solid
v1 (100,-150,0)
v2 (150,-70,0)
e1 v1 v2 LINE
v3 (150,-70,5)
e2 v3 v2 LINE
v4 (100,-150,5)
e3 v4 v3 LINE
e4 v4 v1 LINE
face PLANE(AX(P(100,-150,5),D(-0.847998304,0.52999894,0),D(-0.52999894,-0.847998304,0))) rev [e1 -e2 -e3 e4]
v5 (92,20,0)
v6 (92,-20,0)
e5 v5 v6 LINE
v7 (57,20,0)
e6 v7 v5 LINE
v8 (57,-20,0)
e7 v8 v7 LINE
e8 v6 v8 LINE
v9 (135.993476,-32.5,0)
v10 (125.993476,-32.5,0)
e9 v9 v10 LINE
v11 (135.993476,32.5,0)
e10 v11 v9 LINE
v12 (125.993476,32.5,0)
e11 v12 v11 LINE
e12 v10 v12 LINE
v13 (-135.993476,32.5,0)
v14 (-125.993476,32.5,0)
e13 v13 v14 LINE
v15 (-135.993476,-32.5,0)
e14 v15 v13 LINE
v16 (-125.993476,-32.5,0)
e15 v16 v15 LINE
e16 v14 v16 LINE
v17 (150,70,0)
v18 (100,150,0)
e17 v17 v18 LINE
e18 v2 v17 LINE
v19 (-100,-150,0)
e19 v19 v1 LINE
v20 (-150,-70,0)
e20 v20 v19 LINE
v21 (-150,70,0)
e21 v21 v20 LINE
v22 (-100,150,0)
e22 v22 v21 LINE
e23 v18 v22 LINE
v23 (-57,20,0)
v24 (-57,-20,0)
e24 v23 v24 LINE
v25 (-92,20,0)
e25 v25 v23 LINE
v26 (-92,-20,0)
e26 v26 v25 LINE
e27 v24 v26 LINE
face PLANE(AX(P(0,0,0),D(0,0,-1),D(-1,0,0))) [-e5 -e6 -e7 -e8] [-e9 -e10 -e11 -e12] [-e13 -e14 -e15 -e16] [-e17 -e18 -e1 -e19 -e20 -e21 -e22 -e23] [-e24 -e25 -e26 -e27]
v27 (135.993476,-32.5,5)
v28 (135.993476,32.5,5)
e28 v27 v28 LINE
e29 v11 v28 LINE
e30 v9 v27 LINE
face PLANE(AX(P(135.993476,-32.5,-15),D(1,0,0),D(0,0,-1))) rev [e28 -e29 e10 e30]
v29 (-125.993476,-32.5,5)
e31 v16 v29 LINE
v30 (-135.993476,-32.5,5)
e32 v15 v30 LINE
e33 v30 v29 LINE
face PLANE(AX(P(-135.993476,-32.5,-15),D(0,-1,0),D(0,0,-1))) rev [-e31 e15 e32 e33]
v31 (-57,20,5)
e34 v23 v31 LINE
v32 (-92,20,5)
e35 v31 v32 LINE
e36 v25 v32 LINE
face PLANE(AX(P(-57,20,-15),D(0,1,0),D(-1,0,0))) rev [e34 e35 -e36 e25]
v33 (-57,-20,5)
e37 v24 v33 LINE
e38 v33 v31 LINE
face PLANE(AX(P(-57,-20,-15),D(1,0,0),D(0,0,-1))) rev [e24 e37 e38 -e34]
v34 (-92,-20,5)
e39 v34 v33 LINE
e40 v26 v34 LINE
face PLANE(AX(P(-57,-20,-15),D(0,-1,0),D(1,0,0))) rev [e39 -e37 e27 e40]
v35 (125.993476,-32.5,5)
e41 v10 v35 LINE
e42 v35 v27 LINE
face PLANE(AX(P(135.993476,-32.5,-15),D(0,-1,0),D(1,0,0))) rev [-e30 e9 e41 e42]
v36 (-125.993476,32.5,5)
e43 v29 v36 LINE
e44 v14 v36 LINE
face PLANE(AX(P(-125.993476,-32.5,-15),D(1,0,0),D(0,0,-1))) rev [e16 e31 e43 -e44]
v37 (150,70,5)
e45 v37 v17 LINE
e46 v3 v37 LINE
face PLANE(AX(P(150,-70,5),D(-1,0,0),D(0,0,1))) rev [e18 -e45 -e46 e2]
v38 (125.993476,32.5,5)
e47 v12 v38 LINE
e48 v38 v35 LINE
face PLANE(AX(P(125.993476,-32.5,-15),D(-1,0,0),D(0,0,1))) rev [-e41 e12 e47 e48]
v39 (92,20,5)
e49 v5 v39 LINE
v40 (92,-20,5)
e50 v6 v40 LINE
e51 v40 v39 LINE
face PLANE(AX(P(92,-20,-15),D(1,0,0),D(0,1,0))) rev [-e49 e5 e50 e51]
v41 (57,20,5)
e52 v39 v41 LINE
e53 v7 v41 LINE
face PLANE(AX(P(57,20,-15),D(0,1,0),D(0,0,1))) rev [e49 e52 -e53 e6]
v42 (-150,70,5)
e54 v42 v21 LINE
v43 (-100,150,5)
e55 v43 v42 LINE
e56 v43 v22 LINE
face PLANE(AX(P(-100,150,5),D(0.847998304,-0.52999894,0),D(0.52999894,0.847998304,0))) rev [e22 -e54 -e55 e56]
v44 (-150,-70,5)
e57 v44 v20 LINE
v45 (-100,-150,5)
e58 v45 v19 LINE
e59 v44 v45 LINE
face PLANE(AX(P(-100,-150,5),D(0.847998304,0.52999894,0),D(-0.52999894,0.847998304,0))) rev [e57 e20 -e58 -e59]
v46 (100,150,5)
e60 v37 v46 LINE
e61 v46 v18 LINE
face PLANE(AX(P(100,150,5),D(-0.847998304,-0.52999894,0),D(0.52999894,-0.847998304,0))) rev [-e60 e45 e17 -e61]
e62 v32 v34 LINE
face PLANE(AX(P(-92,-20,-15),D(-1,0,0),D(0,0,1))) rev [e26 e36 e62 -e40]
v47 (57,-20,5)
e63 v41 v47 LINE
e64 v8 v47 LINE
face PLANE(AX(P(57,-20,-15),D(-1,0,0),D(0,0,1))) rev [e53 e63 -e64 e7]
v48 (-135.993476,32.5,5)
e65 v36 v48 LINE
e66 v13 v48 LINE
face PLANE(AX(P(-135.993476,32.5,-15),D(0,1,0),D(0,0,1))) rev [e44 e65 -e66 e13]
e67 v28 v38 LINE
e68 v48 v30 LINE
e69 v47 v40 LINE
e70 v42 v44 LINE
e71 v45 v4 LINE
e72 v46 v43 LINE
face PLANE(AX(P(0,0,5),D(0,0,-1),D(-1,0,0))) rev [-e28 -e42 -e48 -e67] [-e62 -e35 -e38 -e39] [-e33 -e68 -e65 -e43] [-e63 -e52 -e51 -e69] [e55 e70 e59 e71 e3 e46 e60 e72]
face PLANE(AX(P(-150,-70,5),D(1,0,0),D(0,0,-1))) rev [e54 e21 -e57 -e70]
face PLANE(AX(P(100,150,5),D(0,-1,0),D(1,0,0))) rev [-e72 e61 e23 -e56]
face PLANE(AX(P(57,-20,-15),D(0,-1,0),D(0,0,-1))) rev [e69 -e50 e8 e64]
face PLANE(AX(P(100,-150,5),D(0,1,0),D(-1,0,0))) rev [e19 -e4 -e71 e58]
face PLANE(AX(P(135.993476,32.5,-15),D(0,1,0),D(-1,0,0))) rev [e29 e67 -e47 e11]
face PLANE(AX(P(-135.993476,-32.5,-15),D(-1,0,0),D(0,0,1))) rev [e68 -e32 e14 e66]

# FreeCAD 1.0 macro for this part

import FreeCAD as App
import Part
import Sketcher

V = App.Vector

doc = App.newDocument("Part")
body = doc.addObject("PartDesign::Body", "Body")

# Sketch on XY plane
sketch1 = body.newObject("Sketcher::SketchObject", "Sketch")
sketch1.AttachmentSupport = (doc.getObject("XY_Plane"), [""])
sketch1.MapMode = "FlatFace"
sketch1.addGeometry([
    Part.LineSegment(V(-100, 150, 0), V(-150, 70, 0)),  # 0
    Part.LineSegment(V(-150, 70, 0), V(-150, -70, 0)),  # 1
    Part.LineSegment(V(-150, -70, 0), V(-100, -150, 0)),  # 2
    Part.LineSegment(V(-100, -150, 0), V(100, -150, 0)),  # 3
    Part.LineSegment(V(100, -150, 0), V(150, -70, 0)),  # 4
    Part.LineSegment(V(150, -70, 0), V(150, 70, 0)),  # 5
    Part.LineSegment(V(150, 70, 0), V(100, 150, 0)),  # 6
    Part.LineSegment(V(100, 150, 0), V(-100, 150, 0)),  # 7
], False)
sketch1.addConstraint([
    Sketcher.Constraint("Coincident", 0, 2, 1, 1),
    Sketcher.Constraint("Coincident", 1, 2, 2, 1),
    Sketcher.Constraint("Coincident", 2, 2, 3, 1),
    Sketcher.Constraint("Coincident", 3, 2, 4, 1),
    Sketcher.Constraint("Coincident", 4, 2, 5, 1),
    Sketcher.Constraint("Coincident", 5, 2, 6, 1),
    Sketcher.Constraint("Coincident", 6, 2, 7, 1),
    Sketcher.Constraint("Coincident", 7, 2, 0, 1),
    Sketcher.Constraint("Vertical", 1),
    Sketcher.Constraint("Horizontal", 3),
    Sketcher.Constraint("Vertical", 5),
    Sketcher.Constraint("Horizontal", 7),
    Sketcher.Constraint("Symmetric", 0, 2, 4, 2, -1, 1),
    Sketcher.Constraint("Symmetric", 2, 2, 6, 2, -1, 1),
    Sketcher.Constraint("Parallel", 0, 4),
    Sketcher.Constraint("Parallel", 2, 6),
    Sketcher.Constraint("Horizontal", 1, 2, 4, 2),
    Sketcher.Constraint("Vertical", 3, 2, 6, 2),
    Sketcher.Constraint("DistanceX", 3, 1, 3, 2, 200.0),
    Sketcher.Constraint("DistanceY", 1, 2, 1, 1, 140.0),
    Sketcher.Constraint("DistanceX", 0, 2, -1, 1, 150.0),
    Sketcher.Constraint("DistanceY", 2, 2, -1, 1, 150.0),
])
pad1 = body.newObject("PartDesign::Pad", "Pad")
pad1.Profile = sketch1
pad1.Length = 5

# Sketch on XY plane
sketch2 = body.newObject("Sketcher::SketchObject", "Sketch001")
sketch2.AttachmentSupport = (doc.getObject("XY_Plane"), [""])
sketch2.MapMode = "FlatFace"
sketch2.AttachmentOffset = App.Placement(V(0, 0, 5), App.Rotation())
sketch2.addGeometry([
    Part.LineSegment(V(-92, 20, 0), V(-92, -20, 0)),  # 0
    Part.LineSegment(V(-92, -20, 0), V(-57, -20, 0)),  # 1
    Part.LineSegment(V(-57, -20, 0), V(-57, 20, 0)),  # 2
    Part.LineSegment(V(-57, 20, 0), V(-92, 20, 0)),  # 3
    Part.LineSegment(V(57, 20, 0), V(57, -20, 0)),  # 4
    Part.LineSegment(V(57, -20, 0), V(92, -20, 0)),  # 5
    Part.LineSegment(V(92, -20, 0), V(92, 20, 0)),  # 6
    Part.LineSegment(V(92, 20, 0), V(57, 20, 0)),  # 7
    Part.LineSegment(V(-136, 32, 0), V(-136, -32, 0)),  # 8
    Part.LineSegment(V(-136, -32, 0), V(-126, -32, 0)),  # 9
    Part.LineSegment(V(-126, -32, 0), V(-126, 32, 0)),  # 10
    Part.LineSegment(V(-126, 32, 0), V(-136, 32, 0)),  # 11
    Part.LineSegment(V(126, 32, 0), V(126, -32, 0)),  # 12
    Part.LineSegment(V(126, -32, 0), V(136, -32, 0)),  # 13
    Part.LineSegment(V(136, -32, 0), V(136, 32, 0)),  # 14
    Part.LineSegment(V(136, 32, 0), V(126, 32, 0)),  # 15
], False)
sketch2.addConstraint([
    Sketcher.Constraint("Coincident", 0, 2, 1, 1),
    Sketcher.Constraint("Coincident", 1, 2, 2, 1),
    Sketcher.Constraint("Coincident", 2, 2, 3, 1),
    Sketcher.Constraint("Coincident", 3, 2, 0, 1),
    Sketcher.Constraint("Coincident", 4, 2, 5, 1),
    Sketcher.Constraint("Coincident", 5, 2, 6, 1),
    Sketcher.Constraint("Coincident", 6, 2, 7, 1),
    Sketcher.Constraint("Coincident", 7, 2, 4, 1),
    Sketcher.Constraint("Coincident", 8, 2, 9, 1),
    Sketcher.Constraint("Coincident", 9, 2, 10, 1),
    Sketcher.Constraint("Coincident", 10, 2, 11, 1),
    Sketcher.Constraint("Coincident", 11, 2, 8, 1),
    Sketcher.Constraint("Coincident", 12, 2, 13, 1),
    Sketcher.Constraint("Coincident", 13, 2, 14, 1),
    Sketcher.Constraint("Coincident", 14, 2, 15, 1),
    Sketcher.Constraint("Coincident", 15, 2, 12, 1),
    Sketcher.Constraint("Vertical", 0),
    Sketcher.Constraint("Horizontal", 1),
    Sketcher.Constraint("Vertical", 2),
    Sketcher.Constraint("Horizontal", 3),
    Sketcher.Constraint("Vertical", 4),
    Sketcher.Constraint("Horizontal", 5),
    Sketcher.Constraint("Vertical", 6),
    Sketcher.Constraint("Horizontal", 7),
    Sketcher.Constraint("Vertical", 8),
    Sketcher.Constraint("Horizontal", 9),
    Sketcher.Constraint("Vertical", 10),
    Sketcher.Constraint("Horizontal", 11),
    Sketcher.Constraint("Vertical", 12),
    Sketcher.Constraint("Horizontal", 13),
    Sketcher.Constraint("Vertical", 14),
    Sketcher.Constraint("Horizontal", 15),
    Sketcher.Constraint("Symmetric", 2, 2, 4, 2, -1, 1),
    Sketcher.Constraint("Symmetric", 0, 2, 6, 2, -1, 1),
    Sketcher.Constraint("Symmetric", 10, 2, 12, 2, -1, 1),
    Sketcher.Constraint("Symmetric", 8, 2, 14, 2, -1, 1),
    Sketcher.Constraint("Horizontal", 1, 2, 4, 2),
    Sketcher.Constraint("Horizontal", 9, 2, 12, 2),
    Sketcher.Constraint("DistanceX", 1, 1, 1, 2, 35.0),
    Sketcher.Constraint("DistanceX", 9, 1, 9, 2, 10.0),
    Sketcher.Constraint("DistanceY", 0, 2, 0, 1, 40.0),
    Sketcher.Constraint("DistanceY", 8, 2, 8, 1, 65.0),
    Sketcher.Constraint("DistanceX", 0, 2, -1, 1, 92.0),
    Sketcher.Constraint("DistanceX", 8, 2, -1, 1, 135.993476),
])
pocket1 = body.newObject("PartDesign::Pocket", "Pocket")
pocket1.Profile = sketch2
pocket1.Length = 20

doc.recompute()
